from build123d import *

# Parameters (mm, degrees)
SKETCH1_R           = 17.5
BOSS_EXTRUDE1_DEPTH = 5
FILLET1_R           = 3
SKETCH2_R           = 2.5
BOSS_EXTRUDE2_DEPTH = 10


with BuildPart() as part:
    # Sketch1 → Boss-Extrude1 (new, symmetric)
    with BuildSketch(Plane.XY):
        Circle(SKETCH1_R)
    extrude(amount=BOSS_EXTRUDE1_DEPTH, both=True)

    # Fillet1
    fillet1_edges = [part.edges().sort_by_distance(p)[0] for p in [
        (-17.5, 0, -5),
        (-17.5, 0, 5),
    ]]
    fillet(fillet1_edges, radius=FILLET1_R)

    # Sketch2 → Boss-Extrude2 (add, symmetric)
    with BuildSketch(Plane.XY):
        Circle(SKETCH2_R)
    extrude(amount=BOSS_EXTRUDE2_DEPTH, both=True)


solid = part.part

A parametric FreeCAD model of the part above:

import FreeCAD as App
import Part
import Sketcher

V = App.Vector


def edges_at(feature, points):
    """Names of the edges that pass closest to the given points."""
    edges = feature.Shape.Edges
    near = lambda p: min(range(len(edges)), key=lambda i: edges[i].distToShape(Part.Vertex(*p))[0])
    return sorted({f"Edge{near(p) + 1}" for p in points})

doc = App.newDocument("Part")
params = doc.addObject("Spreadsheet::Sheet", "Params")
for row, (alias, value) in enumerate([
    ("sketch1_diameter", "35 mm"),
    ("pad1_length", "10 mm"),
    ("fillet_radius", "3 mm"),
    ("sketch2_diameter", "5 mm"),
    ("pad2_length", "20 mm"),
], start=1):
    params.set(f"A{row}", alias)
    params.set(f"B{row}", "=" + value)
    params.setAlias(f"B{row}", alias)

body = doc.addObject("PartDesign::Body", "Body")

# Sketch on XY plane
sketch1 = body.newObject("Sketcher::SketchObject", "Sketch")
sketch1.AttachmentSupport = (doc.getObject("XY_Plane"), [""])
sketch1.MapMode = "FlatFace"
sketch1.addGeometry(Part.Circle(V(0, 0, 0), V(0, 0, 1), 18), False)
sketch1.addConstraint(Sketcher.Constraint("Coincident", 0, 3, -1, 1))
sketch1.addConstraint(Sketcher.Constraint("Diameter", 0, 35.0))
sketch1.setExpression("Constraints[1]", "Params.sketch1_diameter")
pad1 = body.newObject("PartDesign::Pad", "Pad")
pad1.Profile = sketch1
pad1.setExpression("Length", "Params.pad1_length")
pad1.Midplane = True
doc.recompute()

fillet = body.newObject("PartDesign::Fillet", "Fillet")
fillet.Base = (pad1, edges_at(pad1, [(-17.5, 0, -5), (-17.5, 0, 5)]))
fillet.setExpression("Radius", "Params.fillet_radius")

# Sketch on XY plane
sketch2 = body.newObject("Sketcher::SketchObject", "Sketch001")
sketch2.AttachmentSupport = (doc.getObject("XY_Plane"), [""])
sketch2.MapMode = "FlatFace"
sketch2.addGeometry(Part.Circle(V(0, 0, 0), V(0, 0, 1), 2.5), False)
sketch2.addConstraint(Sketcher.Constraint("Coincident", 0, 3, -1, 1))
sketch2.addConstraint(Sketcher.Constraint("Diameter", 0, 5.0))
sketch2.setExpression("Constraints[1]", "Params.sketch2_diameter")
pad2 = body.newObject("PartDesign::Pad", "Pad001")
pad2.Profile = sketch2
pad2.setExpression("Length", "Params.pad2_length")
pad2.Midplane = True

doc.recompute()
